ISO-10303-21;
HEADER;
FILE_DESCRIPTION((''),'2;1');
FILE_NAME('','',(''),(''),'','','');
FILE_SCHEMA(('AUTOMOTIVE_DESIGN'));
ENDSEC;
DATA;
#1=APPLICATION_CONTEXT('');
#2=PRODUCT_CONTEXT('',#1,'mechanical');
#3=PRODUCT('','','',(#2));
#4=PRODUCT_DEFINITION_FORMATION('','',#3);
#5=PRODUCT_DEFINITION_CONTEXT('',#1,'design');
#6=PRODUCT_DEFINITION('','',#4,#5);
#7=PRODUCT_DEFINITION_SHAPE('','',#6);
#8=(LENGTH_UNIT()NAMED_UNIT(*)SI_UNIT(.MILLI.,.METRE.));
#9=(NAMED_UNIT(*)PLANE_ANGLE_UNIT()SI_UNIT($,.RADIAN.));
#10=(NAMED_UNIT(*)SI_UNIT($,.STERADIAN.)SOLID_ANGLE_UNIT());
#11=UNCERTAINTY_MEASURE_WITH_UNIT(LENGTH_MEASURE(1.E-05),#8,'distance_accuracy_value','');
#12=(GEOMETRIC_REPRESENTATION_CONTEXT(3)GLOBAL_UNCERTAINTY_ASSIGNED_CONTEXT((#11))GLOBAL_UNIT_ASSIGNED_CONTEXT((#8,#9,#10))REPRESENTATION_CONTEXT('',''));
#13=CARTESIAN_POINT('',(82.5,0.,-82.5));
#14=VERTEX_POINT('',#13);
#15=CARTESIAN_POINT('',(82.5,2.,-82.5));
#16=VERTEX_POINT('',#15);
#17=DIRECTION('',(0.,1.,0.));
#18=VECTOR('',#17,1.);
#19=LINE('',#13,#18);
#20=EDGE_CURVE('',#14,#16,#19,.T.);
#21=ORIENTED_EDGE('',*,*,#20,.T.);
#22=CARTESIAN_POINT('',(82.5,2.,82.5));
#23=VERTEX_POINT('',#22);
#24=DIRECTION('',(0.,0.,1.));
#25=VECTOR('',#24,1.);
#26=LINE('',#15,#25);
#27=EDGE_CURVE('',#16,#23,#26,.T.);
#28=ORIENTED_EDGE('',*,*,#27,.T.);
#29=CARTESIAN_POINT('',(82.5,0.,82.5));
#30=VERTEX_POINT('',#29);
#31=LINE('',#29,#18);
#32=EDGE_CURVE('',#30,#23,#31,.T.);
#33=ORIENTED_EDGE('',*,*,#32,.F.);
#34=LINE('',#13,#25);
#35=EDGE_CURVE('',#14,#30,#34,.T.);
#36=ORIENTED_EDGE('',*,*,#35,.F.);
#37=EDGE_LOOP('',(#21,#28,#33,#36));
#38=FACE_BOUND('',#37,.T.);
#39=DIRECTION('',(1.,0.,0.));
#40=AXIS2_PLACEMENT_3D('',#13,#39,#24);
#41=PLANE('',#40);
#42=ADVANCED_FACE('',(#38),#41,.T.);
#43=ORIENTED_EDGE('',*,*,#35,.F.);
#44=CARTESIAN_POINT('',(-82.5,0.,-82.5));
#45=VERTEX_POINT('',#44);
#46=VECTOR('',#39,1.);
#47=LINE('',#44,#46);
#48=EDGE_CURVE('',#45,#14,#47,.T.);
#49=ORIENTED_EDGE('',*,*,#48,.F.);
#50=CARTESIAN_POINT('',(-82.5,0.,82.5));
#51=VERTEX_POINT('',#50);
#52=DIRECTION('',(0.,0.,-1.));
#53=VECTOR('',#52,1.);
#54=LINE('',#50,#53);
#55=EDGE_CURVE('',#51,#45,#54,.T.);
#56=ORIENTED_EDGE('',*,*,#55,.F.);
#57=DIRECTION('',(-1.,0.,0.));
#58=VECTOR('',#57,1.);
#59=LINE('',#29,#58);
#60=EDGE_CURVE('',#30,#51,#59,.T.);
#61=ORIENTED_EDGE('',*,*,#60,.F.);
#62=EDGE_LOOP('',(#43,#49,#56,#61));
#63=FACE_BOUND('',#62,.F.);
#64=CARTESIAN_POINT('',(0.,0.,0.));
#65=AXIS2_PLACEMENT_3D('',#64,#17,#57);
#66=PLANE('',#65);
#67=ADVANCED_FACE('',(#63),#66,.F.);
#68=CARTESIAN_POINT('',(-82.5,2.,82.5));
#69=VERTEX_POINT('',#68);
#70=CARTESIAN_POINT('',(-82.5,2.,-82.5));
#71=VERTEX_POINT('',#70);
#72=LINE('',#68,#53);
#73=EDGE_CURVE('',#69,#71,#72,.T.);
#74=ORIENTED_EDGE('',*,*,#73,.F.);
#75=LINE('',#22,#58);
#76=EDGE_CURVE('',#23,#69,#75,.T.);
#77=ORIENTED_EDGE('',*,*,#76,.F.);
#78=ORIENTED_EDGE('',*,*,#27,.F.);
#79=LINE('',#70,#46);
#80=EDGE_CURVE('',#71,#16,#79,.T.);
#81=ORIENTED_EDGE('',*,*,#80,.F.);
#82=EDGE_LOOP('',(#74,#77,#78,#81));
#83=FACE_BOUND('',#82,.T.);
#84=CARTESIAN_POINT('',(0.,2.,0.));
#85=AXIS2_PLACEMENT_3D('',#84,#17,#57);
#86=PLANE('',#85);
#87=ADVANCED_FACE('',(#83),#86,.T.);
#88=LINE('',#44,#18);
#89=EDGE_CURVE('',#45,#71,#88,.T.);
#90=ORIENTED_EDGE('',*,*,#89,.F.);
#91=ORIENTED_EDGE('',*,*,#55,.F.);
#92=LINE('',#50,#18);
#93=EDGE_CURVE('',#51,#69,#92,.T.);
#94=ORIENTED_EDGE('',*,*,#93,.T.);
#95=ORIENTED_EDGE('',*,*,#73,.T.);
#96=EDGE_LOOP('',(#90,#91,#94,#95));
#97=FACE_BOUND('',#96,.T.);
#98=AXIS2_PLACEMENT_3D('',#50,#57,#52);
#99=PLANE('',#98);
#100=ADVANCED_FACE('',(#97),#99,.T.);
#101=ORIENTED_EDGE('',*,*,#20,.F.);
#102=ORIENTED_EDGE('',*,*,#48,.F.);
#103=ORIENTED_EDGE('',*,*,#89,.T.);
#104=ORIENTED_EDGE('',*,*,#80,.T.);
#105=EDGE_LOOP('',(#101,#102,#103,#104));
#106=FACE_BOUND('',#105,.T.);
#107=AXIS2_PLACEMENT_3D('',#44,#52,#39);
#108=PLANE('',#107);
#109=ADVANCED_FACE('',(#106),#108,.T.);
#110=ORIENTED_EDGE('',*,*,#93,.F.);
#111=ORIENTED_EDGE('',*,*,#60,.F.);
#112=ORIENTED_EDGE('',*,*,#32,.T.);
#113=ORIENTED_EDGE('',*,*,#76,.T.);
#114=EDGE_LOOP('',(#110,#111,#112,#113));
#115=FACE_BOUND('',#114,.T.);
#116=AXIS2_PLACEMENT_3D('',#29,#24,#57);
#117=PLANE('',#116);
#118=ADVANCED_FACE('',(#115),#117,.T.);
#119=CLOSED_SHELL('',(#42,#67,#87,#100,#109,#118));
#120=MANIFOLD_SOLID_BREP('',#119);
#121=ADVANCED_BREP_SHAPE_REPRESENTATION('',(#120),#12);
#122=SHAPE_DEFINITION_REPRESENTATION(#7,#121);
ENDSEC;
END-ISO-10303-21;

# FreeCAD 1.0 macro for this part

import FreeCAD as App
import Part
import Sketcher


def add_polygon(sketch, points):
    """Adds a closed chain of lines whose ends are joined by coincident constraints."""
    first, n = sketch.GeometryCount, len(points)
    for a, b in zip(points, points[1:] + points[:1]):
        sketch.addGeometry(Part.LineSegment(App.Vector(*a, 0), App.Vector(*b, 0)), False)
    for i in range(n):
        sketch.addConstraint(Sketcher.Constraint("Coincident", first + i, 2, first + (i + 1) % n, 1))

doc = App.newDocument("Part")
params = doc.addObject("Spreadsheet::Sheet", "Params")
for row, (alias, value) in enumerate([
    ("sketch1_width", "165 mm"),
    ("pad1_length", "2 mm"),
], start=1):
    params.set(f"A{row}", alias)
    params.set(f"B{row}", "=" + value)
    params.setAlias(f"B{row}", alias)

body = doc.addObject("PartDesign::Body", "Body")

sketch1 = body.newObject("Sketcher::SketchObject", "Sketch")
sketch1.AttachmentSupport = (doc.getObject("XZ_Plane"), [""])
sketch1.MapMode = "FlatFace"
add_polygon(sketch1, [(-82, 82), (82, 82), (82, -82), (-82, -82)])
sketch1.addConstraint([
    Sketcher.Constraint("Horizontal", 0),
    Sketcher.Constraint("Vertical", 1),
    Sketcher.Constraint("Horizontal", 2),
    Sketcher.Constraint("Vertical", 3),
    Sketcher.Constraint("Symmetric", 0, 2, 2, 2, -1, 1),
    Sketcher.Constraint("Equal", 2, 1),
    Sketcher.Constraint("DistanceX", 0, 1, 0, 2, 165.0),
])
sketch1.setExpression("Constraints[10]", "Params.sketch1_width")
pad1 = body.newObject("PartDesign::Pad", "Pad")
pad1.Profile = sketch1
pad1.setExpression("Length", "Params.pad1_length")
pad1.Reversed = True

doc.recompute()
